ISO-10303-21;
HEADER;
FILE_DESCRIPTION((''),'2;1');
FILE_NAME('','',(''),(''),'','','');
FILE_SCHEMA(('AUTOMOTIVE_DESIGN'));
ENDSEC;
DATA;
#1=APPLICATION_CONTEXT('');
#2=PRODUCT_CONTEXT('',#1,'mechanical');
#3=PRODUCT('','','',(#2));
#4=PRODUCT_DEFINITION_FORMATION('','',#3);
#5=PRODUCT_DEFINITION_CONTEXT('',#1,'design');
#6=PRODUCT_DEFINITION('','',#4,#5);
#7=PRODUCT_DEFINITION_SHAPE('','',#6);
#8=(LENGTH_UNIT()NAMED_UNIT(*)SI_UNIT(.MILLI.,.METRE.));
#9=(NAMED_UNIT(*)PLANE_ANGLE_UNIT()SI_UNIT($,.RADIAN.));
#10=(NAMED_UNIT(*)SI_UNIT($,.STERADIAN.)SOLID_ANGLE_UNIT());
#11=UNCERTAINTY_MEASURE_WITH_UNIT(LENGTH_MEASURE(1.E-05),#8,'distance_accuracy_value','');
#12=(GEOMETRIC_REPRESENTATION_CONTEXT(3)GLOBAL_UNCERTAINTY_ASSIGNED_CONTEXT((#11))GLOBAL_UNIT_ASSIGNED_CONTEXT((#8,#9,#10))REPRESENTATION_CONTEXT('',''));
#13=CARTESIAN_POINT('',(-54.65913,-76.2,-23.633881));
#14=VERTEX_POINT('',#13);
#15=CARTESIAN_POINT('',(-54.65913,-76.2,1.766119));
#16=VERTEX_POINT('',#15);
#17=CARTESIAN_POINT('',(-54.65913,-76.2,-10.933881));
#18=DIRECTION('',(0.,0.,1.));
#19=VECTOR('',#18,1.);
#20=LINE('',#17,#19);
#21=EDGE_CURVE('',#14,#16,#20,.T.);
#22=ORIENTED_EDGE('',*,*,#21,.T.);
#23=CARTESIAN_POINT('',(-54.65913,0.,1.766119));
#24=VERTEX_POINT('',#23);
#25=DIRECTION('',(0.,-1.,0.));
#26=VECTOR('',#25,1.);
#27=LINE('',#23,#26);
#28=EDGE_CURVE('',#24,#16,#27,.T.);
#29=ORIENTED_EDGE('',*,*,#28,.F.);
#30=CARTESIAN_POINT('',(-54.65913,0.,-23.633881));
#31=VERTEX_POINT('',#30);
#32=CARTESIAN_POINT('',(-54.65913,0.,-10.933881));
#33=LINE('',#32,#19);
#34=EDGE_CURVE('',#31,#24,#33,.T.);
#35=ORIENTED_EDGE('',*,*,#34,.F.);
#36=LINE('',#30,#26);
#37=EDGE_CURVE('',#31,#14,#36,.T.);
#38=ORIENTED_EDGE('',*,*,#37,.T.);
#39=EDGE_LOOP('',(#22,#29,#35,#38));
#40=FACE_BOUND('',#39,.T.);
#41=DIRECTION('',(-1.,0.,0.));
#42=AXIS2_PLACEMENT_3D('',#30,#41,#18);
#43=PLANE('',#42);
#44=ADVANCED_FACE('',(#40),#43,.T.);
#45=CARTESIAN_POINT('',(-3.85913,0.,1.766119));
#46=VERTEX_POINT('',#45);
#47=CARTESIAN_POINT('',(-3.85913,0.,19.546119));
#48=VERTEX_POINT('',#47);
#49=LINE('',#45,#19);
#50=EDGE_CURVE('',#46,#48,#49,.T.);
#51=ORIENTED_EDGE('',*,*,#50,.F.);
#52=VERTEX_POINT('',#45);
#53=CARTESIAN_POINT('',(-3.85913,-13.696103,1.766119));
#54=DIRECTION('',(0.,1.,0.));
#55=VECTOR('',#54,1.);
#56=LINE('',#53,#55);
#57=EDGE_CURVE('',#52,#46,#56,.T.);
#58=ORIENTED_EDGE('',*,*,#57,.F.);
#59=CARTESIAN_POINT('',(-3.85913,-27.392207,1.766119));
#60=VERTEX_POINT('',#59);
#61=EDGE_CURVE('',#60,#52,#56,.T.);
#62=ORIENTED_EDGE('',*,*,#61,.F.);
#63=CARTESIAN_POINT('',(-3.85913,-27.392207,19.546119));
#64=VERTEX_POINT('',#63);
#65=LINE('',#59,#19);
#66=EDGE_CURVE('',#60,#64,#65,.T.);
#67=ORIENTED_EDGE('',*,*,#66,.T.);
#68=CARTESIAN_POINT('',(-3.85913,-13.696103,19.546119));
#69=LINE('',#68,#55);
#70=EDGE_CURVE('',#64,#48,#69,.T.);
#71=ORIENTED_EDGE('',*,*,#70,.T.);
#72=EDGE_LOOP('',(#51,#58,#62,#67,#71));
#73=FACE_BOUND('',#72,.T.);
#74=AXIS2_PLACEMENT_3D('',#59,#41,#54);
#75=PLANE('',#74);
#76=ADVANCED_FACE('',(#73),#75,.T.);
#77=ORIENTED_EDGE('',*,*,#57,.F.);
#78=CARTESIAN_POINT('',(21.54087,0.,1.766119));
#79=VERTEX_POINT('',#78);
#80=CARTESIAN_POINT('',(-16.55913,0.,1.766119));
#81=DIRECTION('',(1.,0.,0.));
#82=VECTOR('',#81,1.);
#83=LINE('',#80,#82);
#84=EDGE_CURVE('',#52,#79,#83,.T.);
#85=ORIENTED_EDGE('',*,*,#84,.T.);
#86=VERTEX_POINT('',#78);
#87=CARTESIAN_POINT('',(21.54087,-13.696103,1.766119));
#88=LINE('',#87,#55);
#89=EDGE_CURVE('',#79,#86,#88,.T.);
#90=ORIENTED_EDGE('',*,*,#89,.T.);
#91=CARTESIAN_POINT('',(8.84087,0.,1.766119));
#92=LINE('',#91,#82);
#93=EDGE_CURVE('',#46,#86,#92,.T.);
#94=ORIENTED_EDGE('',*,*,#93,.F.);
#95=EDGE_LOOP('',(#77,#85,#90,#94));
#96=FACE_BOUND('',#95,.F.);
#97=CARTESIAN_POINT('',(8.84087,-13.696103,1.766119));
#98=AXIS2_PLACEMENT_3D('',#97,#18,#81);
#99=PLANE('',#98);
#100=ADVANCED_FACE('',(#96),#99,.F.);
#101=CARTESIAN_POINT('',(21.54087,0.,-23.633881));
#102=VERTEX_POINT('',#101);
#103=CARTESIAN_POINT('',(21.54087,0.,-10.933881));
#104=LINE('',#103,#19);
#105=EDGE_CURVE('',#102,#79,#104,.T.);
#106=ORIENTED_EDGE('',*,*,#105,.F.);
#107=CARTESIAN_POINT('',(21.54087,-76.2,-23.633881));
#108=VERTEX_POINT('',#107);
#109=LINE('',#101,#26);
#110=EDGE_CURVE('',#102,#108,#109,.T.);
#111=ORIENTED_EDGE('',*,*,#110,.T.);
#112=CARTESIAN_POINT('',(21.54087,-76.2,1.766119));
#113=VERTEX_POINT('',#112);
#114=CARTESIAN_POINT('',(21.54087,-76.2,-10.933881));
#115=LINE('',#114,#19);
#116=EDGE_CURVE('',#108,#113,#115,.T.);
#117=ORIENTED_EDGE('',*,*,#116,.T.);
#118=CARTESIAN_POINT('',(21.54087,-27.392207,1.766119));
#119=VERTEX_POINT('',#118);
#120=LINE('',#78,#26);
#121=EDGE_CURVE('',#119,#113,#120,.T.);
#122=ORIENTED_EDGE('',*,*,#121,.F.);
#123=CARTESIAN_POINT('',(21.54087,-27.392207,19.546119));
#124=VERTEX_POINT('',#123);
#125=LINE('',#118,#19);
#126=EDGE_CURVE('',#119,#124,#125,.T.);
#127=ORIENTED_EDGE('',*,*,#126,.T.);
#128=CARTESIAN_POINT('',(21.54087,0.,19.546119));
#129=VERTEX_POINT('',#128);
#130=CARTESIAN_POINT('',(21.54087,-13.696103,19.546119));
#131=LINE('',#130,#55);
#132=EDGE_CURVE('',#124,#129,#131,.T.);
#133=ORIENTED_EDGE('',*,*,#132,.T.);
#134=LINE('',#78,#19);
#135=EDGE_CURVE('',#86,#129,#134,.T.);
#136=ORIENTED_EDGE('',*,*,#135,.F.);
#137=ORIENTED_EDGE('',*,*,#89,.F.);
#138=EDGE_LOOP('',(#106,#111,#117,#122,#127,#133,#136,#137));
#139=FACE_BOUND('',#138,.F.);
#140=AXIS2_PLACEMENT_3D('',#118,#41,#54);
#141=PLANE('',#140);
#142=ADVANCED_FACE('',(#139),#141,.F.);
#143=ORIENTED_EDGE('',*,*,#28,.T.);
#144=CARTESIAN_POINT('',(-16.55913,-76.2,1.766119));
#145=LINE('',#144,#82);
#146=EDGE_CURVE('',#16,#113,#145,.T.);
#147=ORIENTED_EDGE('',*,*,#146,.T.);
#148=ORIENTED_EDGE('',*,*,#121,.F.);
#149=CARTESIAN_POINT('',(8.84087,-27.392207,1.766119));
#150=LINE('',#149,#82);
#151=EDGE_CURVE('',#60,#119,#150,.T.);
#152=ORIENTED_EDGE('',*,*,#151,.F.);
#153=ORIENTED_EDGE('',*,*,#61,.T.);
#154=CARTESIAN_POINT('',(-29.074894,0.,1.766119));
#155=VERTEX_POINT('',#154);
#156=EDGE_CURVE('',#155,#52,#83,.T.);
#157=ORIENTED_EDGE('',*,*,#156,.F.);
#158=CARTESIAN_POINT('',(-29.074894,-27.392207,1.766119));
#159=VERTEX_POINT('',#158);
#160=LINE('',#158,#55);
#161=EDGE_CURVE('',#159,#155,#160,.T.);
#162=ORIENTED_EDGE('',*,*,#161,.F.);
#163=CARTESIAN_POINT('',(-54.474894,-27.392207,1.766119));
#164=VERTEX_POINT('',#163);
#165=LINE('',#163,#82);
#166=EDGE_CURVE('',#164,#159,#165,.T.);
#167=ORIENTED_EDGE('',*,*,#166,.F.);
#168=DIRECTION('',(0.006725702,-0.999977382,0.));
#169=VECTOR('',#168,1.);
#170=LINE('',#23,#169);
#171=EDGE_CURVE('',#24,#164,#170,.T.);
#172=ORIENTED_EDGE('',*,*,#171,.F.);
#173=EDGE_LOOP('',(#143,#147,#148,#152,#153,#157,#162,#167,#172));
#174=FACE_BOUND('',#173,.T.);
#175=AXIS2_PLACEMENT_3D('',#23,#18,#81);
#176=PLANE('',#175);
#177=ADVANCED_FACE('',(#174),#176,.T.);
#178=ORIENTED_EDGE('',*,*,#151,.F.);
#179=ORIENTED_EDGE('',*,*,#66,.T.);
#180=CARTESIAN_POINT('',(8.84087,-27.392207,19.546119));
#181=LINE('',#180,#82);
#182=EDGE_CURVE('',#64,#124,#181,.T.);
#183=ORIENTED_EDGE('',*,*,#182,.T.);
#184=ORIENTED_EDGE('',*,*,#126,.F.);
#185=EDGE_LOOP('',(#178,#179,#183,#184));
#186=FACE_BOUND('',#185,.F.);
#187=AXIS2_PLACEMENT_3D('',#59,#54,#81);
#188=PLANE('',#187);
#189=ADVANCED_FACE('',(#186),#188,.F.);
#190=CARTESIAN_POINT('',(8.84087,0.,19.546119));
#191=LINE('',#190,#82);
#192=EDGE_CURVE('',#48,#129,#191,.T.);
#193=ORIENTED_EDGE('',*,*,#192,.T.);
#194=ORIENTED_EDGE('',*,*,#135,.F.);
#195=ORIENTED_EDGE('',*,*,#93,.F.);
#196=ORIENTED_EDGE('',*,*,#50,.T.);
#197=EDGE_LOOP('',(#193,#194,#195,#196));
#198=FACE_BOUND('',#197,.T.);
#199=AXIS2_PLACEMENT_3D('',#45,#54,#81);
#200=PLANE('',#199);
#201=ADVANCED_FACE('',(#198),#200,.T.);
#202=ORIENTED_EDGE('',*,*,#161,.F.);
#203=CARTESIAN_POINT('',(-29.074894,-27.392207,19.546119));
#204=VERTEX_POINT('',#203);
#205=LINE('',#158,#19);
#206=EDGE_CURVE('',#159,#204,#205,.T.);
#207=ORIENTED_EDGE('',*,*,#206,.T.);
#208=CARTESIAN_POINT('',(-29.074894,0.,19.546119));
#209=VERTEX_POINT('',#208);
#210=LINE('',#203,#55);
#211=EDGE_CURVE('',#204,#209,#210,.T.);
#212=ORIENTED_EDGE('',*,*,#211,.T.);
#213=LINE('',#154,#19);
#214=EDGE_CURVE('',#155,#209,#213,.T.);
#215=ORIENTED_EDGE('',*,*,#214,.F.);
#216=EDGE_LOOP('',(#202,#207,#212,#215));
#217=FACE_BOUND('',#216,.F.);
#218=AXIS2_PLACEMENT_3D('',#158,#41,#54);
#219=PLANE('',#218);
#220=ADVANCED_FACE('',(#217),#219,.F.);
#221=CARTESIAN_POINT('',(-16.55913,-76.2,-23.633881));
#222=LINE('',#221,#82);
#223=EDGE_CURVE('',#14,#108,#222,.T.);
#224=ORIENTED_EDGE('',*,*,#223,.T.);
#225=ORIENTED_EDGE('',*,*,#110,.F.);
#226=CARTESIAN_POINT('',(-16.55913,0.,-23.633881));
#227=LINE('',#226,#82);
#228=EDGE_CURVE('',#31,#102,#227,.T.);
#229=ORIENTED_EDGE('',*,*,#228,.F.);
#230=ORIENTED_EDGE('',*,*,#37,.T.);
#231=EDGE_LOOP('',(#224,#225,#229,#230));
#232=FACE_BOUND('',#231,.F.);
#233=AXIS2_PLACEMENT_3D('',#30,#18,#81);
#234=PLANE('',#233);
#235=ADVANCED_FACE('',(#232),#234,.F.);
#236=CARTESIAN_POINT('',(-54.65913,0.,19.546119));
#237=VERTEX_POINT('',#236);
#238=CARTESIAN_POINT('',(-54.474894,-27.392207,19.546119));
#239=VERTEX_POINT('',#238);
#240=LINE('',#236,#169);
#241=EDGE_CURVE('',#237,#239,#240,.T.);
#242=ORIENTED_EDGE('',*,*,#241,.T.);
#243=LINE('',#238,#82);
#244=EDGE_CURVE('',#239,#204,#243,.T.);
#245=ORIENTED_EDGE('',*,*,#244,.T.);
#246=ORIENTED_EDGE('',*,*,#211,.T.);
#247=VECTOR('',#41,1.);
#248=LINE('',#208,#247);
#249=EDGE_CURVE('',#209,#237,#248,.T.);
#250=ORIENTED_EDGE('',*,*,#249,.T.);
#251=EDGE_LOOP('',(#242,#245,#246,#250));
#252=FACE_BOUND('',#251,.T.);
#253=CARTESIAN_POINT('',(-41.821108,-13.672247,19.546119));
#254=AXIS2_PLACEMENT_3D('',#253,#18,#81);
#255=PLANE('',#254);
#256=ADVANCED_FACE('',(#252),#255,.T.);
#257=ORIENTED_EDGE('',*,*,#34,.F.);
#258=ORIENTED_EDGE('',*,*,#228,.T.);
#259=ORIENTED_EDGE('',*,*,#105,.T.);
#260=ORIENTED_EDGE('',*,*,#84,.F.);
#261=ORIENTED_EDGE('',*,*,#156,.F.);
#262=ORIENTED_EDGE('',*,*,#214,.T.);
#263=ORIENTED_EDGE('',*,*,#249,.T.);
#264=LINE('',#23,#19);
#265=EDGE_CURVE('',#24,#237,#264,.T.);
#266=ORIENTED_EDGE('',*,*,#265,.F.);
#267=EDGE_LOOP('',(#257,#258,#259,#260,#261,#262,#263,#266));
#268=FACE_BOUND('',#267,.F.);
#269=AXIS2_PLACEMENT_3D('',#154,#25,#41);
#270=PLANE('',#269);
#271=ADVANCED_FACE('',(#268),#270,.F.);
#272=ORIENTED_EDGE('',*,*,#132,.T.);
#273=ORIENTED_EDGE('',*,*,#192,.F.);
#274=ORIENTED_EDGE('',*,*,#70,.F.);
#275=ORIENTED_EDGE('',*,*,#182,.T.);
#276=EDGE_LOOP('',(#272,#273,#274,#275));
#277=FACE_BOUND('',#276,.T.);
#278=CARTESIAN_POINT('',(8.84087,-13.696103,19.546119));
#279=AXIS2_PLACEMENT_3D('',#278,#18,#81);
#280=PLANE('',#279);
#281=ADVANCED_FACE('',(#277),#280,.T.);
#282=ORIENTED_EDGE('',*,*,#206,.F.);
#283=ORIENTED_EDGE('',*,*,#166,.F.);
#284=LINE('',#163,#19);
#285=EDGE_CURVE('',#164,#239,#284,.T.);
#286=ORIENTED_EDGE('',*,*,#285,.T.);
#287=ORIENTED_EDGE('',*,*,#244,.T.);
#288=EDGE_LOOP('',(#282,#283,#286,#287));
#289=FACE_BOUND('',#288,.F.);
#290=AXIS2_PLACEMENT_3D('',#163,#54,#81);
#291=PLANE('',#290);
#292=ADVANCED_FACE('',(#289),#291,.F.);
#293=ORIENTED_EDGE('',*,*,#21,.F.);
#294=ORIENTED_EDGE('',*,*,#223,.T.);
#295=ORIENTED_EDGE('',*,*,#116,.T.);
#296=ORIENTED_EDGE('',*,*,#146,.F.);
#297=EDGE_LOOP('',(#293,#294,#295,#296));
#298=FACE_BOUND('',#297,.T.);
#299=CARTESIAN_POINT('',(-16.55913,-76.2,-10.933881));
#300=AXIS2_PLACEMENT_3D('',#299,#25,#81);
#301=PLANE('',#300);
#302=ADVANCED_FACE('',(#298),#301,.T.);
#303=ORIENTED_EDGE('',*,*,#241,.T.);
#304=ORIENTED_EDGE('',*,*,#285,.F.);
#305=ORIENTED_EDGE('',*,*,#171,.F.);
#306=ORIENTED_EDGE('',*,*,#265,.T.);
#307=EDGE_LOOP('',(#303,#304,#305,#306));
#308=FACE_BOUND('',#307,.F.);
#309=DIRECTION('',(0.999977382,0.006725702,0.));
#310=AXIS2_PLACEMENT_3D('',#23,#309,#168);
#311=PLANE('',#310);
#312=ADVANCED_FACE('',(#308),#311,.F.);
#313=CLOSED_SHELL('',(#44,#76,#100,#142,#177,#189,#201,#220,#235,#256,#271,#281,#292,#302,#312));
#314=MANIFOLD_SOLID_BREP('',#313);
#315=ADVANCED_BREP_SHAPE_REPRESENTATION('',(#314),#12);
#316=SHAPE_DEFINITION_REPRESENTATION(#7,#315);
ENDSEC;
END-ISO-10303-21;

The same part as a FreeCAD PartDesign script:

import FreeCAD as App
import Part
import Sketcher

V = App.Vector
Q = App.Units.Quantity


def add_polygon(sketch, points):
    """Adds a closed chain of lines whose ends are joined by coincident constraints."""
    first, n = sketch.GeometryCount, len(points)
    for a, b in zip(points, points[1:] + points[:1]):
        sketch.addGeometry(Part.LineSegment(App.Vector(*a, 0), App.Vector(*b, 0)), False)
    for i in range(n):
        sketch.addConstraint(Sketcher.Constraint("Coincident", first + i, 2, first + (i + 1) % n, 1))

doc = App.newDocument("Part")
params = doc.addObject("Spreadsheet::Sheet", "Params")
for row, (alias, value) in enumerate([
    ("sketch1_width", "3 in"),
    ("sketch1_height", "1 in"),
    ("pad1_length", "3 in"),
    ("sketch2_width", "1 in"),
    ("pad2_length", "0.7 in"),
    ("sketch3_width", "1 in"),
    ("pad3_length", "0.7 in"),
], start=1):
    params.set(f"A{row}", alias)
    params.set(f"B{row}", "=" + value)
    params.setAlias(f"B{row}", alias)

body = doc.addObject("PartDesign::Body", "Body")

# Sketch on XZ plane
sketch1 = body.newObject("Sketcher::SketchObject", "Sketch")
sketch1.AttachmentSupport = (doc.getObject("XZ_Plane"), [""])
sketch1.MapMode = "FlatFace"
add_polygon(sketch1, [(-55, 2), (-55, -24), (22, -24), (22, 2)])  # lines 0-3
sketch1.addConstraint(Sketcher.Constraint("Vertical", 0))
sketch1.addConstraint(Sketcher.Constraint("Horizontal", 1))
sketch1.addConstraint(Sketcher.Constraint("Vertical", 2))
sketch1.addConstraint(Sketcher.Constraint("Horizontal", 3))
sketch1.addConstraint(Sketcher.Constraint("DistanceX", 1, 1, 1, 2, Q("3 in")))
sketch1.addConstraint(Sketcher.Constraint("DistanceY", 0, 2, 0, 1, Q("1 in")))
sketch1.addConstraint(Sketcher.Constraint("DistanceX", 0, 2, -1, 1, 54.65913))
sketch1.addConstraint(Sketcher.Constraint("DistanceY", 0, 2, -1, 1, 23.633881))
sketch1.setExpression("Constraints[8]", "Params.sketch1_width")
sketch1.setExpression("Constraints[9]", "Params.sketch1_height")
pad1 = body.newObject("PartDesign::Pad", "Pad")
pad1.Profile = sketch1
pad1.setExpression("Length", "Params.pad1_length")

# Sketch on XY plane
sketch2 = body.newObject("Sketcher::SketchObject", "Sketch001")
sketch2.AttachmentSupport = (doc.getObject("XY_Plane"), [""])
sketch2.MapMode = "FlatFace"
sketch2.AttachmentOffset = App.Placement(V(0, 0, 1.766119), App.Rotation())
add_polygon(sketch2, [(-55, 0), (-54, -27), (-29, -27), (-29, 0)])  # lines 0-3
sketch2.addConstraint(Sketcher.Constraint("Horizontal", 1))
sketch2.addConstraint(Sketcher.Constraint("Vertical", 2))
sketch2.addConstraint(Sketcher.Constraint("Horizontal", 3))
sketch2.addConstraint(Sketcher.Constraint("PointOnObject", 2, 2, -1))
sketch2.addConstraint(Sketcher.Constraint("DistanceX", 1, 1, 1, 2, Q("1 in")))
sketch2.addConstraint(Sketcher.Constraint("DistanceX", 3, 2, 3, 1, 25.584236))
sketch2.addConstraint(Sketcher.Constraint("DistanceY", 2, 1, 2, 2, 27.392207))
sketch2.addConstraint(Sketcher.Constraint("DistanceX", 3, 2, -1, 1, 54.65913))
sketch2.setExpression("Constraints[8]", "Params.sketch2_width")
pad2 = body.newObject("PartDesign::Pad", "Pad001")
pad2.Profile = sketch2
pad2.setExpression("Length", "Params.pad2_length")

# Sketch on XY plane
sketch3 = body.newObject("Sketcher::SketchObject", "Sketch002")
sketch3.AttachmentSupport = (doc.getObject("XY_Plane"), [""])
sketch3.MapMode = "FlatFace"
sketch3.AttachmentOffset = App.Placement(V(0, 0, 1.766119), App.Rotation())
add_polygon(sketch3, [(-4, 0), (-4, -27), (22, -27), (22, 0)])  # lines 0-3
sketch3.addConstraint(Sketcher.Constraint("Vertical", 0))
sketch3.addConstraint(Sketcher.Constraint("Horizontal", 1))
sketch3.addConstraint(Sketcher.Constraint("Vertical", 2))
sketch3.addConstraint(Sketcher.Constraint("Horizontal", 3))
sketch3.addConstraint(Sketcher.Constraint("PointOnObject", 2, 2, -1))
sketch3.addConstraint(Sketcher.Constraint("DistanceX", 1, 1, 1, 2, Q("1 in")))
sketch3.addConstraint(Sketcher.Constraint("DistanceY", 0, 2, 0, 1, 27.392207))
sketch3.addConstraint(Sketcher.Constraint("DistanceX", 0, 2, -1, 1, 3.85913))
sketch3.setExpression("Constraints[9]", "Params.sketch3_width")
pad3 = body.newObject("PartDesign::Pad", "Pad002")
pad3.Profile = sketch3
pad3.setExpression("Length", "Params.pad3_length")

doc.recompute()
